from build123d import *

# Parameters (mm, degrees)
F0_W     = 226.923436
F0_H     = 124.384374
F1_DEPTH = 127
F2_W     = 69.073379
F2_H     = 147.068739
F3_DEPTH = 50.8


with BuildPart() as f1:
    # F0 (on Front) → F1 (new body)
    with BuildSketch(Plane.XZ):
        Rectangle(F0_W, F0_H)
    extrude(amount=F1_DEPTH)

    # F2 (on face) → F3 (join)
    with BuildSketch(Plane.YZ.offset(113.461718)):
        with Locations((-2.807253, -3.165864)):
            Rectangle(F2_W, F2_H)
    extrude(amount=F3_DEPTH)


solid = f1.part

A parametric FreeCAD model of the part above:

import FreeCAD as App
import Part
import Sketcher

V = App.Vector
Q = App.Units.Quantity


def add_polygon(sketch, points):
    """Adds a closed chain of lines whose ends are joined by coincident constraints."""
    first, n = sketch.GeometryCount, len(points)
    for a, b in zip(points, points[1:] + points[:1]):
        sketch.addGeometry(Part.LineSegment(App.Vector(*a, 0), App.Vector(*b, 0)), False)
    for i in range(n):
        sketch.addConstraint(Sketcher.Constraint("Coincident", first + i, 2, first + (i + 1) % n, 1))

doc = App.newDocument("Part")
body = doc.addObject("PartDesign::Body", "Body")

# Sketch on XZ plane
sketch1 = body.newObject("Sketcher::SketchObject", "Sketch")
sketch1.AttachmentSupport = (doc.getObject("XZ_Plane"), [""])
sketch1.MapMode = "FlatFace"
add_polygon(sketch1, [(-113, 62), (-113, -62), (113, -62), (113, 62)])  # lines 0-3
sketch1.addConstraint([
    Sketcher.Constraint("Vertical", 0),
    Sketcher.Constraint("Horizontal", 1),
    Sketcher.Constraint("Vertical", 2),
    Sketcher.Constraint("Horizontal", 3),
    Sketcher.Constraint("Symmetric", 0, 2, 2, 2, -1, 1),
    Sketcher.Constraint("DistanceX", 1, 1, 1, 2, 226.923436),
    Sketcher.Constraint("DistanceY", 0, 2, 0, 1, 124.384374),
])
pad1 = body.newObject("PartDesign::Pad", "Pad")
pad1.Profile = sketch1
pad1.Length = Q("5 in")

# Sketch on YZ plane
sketch2 = body.newObject("Sketcher::SketchObject", "Sketch001")
sketch2.AttachmentSupport = (doc.getObject("YZ_Plane"), [""])
sketch2.MapMode = "FlatFace"
sketch2.AttachmentOffset = App.Placement(V(0, 0, 113.461718), App.Rotation())
add_polygon(sketch2, [(-37, 70), (-37, -77), (32, -77), (32, 70)])  # lines 0-3
sketch2.addConstraint([
    Sketcher.Constraint("Vertical", 0),
    Sketcher.Constraint("Horizontal", 1),
    Sketcher.Constraint("Vertical", 2),
    Sketcher.Constraint("Horizontal", 3),
    Sketcher.Constraint("DistanceX", 1, 1, 1, 2, 69.073379),
    Sketcher.Constraint("DistanceY", 0, 2, 0, 1, 147.068739),
    Sketcher.Constraint("DistanceX", 0, 2, -1, 1, 37.343942),
    Sketcher.Constraint("DistanceY", 0, 2, -1, 1, 76.700233),
])
pad2 = body.newObject("PartDesign::Pad", "Pad001")
pad2.Profile = sketch2
pad2.Length = Q("2 in")

doc.recompute()
